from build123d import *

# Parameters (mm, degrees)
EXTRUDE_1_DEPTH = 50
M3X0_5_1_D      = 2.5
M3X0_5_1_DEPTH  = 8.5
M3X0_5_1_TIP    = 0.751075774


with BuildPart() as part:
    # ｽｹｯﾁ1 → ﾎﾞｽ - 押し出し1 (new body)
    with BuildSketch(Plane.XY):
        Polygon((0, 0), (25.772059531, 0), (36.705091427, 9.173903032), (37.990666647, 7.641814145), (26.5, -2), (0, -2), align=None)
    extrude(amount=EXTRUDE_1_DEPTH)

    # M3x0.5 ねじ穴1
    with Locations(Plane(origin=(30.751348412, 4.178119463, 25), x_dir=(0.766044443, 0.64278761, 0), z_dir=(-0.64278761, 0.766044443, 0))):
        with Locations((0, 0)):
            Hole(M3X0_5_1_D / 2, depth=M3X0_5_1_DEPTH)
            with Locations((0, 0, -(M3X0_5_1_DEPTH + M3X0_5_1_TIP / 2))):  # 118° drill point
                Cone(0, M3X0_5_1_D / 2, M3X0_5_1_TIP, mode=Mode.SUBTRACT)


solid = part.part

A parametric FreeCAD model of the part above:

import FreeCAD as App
import Part
import Sketcher
Q = App.Units.Quantity

doc = App.newDocument("Part")
body = doc.addObject("PartDesign::Body", "Body")

# Sketch on XY plane
sketch1 = doc.addObject("Sketcher::SketchObject", "Sketch")
body.addObject(sketch1)
sketch1.AttachmentSupport = (doc.XY_Plane, [""])
sketch1.MapMode = "FlatFace"
sketch1.addGeometry([
    Part.LineSegment(App.Vector(25.8, 0, 0), App.Vector(0, 0, 0)),  # 0
    Part.LineSegment(App.Vector(0, 0, 0), App.Vector(0, -2, 0)),  # 1
    Part.LineSegment(App.Vector(0, -2, 0), App.Vector(26.5, -2, 0)),  # 2
    Part.LineSegment(App.Vector(26.5, -2, 0), App.Vector(38, 7.6, 0)),  # 3
    Part.LineSegment(App.Vector(38, 7.6, 0), App.Vector(36.7, 9.2, 0)),  # 4
    Part.LineSegment(App.Vector(36.7, 9.2, 0), App.Vector(25.8, 0, 0)),  # 5
], False)
sketch1.addConstraint([
    Sketcher.Constraint("Coincident", 0, 2, 1, 1),
    Sketcher.Constraint("Coincident", 1, 2, 2, 1),
    Sketcher.Constraint("Coincident", 2, 2, 3, 1),
    Sketcher.Constraint("Coincident", 3, 2, 4, 1),
    Sketcher.Constraint("Coincident", 4, 2, 5, 1),
    Sketcher.Constraint("Coincident", 5, 2, 0, 1),
    Sketcher.Constraint("Horizontal", 0),
    Sketcher.Constraint("Vertical", 1),
    Sketcher.Constraint("Horizontal", 2),
    Sketcher.Constraint("Coincident", 0, 2, -1, 1),
    Sketcher.Constraint("Perpendicular", 3, 4),
    Sketcher.Constraint("Perpendicular", 4, 5),
    Sketcher.Constraint("DistanceY", 1, 2, 1, 1, Q("2 mm")),
    Sketcher.Constraint("Angle", 3, Q("40 deg")),
    Sketcher.Constraint("Distance", 3, Q("15 mm")),
    Sketcher.Constraint("Distance", 4, Q("2 mm")),
    Sketcher.Constraint("DistanceX", 2, 1, 2, 2, Q("26.5 mm")),
])
pad1 = doc.addObject("PartDesign::Pad", "Pad")
body.addObject(pad1)
pad1.Profile = sketch1
pad1.Length = 50

# Sketch on an angled plane
sketch2 = doc.addObject("Sketcher::SketchObject", "Sketch001")
body.addObject(sketch2)
sketch2.Placement = App.Placement(App.Vector(10.648394, -12.690262, 0), App.Rotation(App.Vector(0.766044443, 0.64278761, 0), App.Vector(0, 0, -1), App.Vector(-0.64278761, 0.766044443, 0), "ZXY"))
sketch2.addGeometry(Part.Circle(App.Vector(26.2, -25, 0), App.Vector(0, 0, 1), 1.2), False)
sketch2.addConstraint([
    Sketcher.Constraint("Diameter", 0, Q("2.5 mm")),
    Sketcher.Constraint("DistanceY", 0, 3, -1, 1, Q("25 mm")),
    Sketcher.Constraint("DistanceX", -1, 1, 0, 3, Q("26.242543 mm")),
])
doc.recompute()
hole = doc.addObject("PartDesign::Hole", "Hole")
body.addObject(hole)
hole.Profile = sketch2
hole.ThreadType = "None"
hole.Diameter = 2.5
hole.DepthType = "Dimension"
hole.Depth = 8.5
hole.DrillPoint = "Angled"
hole.DrillPointAngle = 118

doc.recompute()
